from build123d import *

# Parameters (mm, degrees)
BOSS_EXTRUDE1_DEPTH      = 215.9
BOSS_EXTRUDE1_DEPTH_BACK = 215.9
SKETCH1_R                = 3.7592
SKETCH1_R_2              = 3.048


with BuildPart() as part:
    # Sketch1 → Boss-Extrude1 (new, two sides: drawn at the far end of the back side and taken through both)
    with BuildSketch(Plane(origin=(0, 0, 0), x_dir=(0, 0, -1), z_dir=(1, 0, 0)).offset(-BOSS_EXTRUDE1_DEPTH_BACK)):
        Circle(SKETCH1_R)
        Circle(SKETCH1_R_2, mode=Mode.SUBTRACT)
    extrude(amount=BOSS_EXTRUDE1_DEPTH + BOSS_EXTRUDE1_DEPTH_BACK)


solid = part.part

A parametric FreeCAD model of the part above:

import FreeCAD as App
import Part
import Sketcher
from FreeCAD import Vector
Q = App.Units.Quantity

doc = App.newDocument("Part")
body = doc.addObject("PartDesign::Body", "Body")

# Sketch on YZ plane
sketch1 = body.newObject("Sketcher::SketchObject", "Sketch")
sketch1.AttachmentSupport = (doc.getObject("YZ_Plane"), [""])
sketch1.MapMode = "FlatFace"
sketch1.addGeometry(Part.Circle(Vector(0, 0, 0), Vector(0, 0, 1), 3.7592), False)
sketch1.addGeometry(Part.Circle(Vector(0, 0, 0), Vector(0, 0, 1), 3.048), False)
sketch1.addConstraint(Sketcher.Constraint("Coincident", 0, 3, -1, 1))
sketch1.addConstraint(Sketcher.Constraint("Coincident", 1, 3, -1, 1))
sketch1.addConstraint(Sketcher.Constraint("Diameter", 1, Q("0.24 in")))
sketch1.addConstraint(Sketcher.Constraint("Diameter", 0, Q("0.296 in")))
pad1 = body.newObject("PartDesign::Pad", "Pad")
pad1.Profile = sketch1
pad1.Type = "TwoLengths"
pad1.Length = Q("8.5 in")
pad1.Length2 = Q("8.5 in")

doc.recompute()
